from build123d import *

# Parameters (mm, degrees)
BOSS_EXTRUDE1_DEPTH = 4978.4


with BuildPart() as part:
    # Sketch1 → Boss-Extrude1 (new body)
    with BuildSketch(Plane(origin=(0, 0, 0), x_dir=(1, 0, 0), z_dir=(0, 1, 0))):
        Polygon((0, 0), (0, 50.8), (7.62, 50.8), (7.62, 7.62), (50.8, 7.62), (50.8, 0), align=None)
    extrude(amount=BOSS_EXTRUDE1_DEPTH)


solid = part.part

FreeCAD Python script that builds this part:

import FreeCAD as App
import Part
import Sketcher

V = App.Vector
Q = App.Units.Quantity

doc = App.newDocument("Part")
params = doc.addObject("Spreadsheet::Sheet", "Params")
for row, (alias, value) in enumerate([
    ("sketch1_width", "2 in"),
    ("sketch1_width2", "1.7 in"),
    ("pad1_length", "196 in"),
], start=1):
    params.set(f"A{row}", alias)
    params.set(f"B{row}", "=" + value)
    params.setAlias(f"B{row}", alias)

body = doc.addObject("PartDesign::Body", "Body")

sketch1 = body.newObject("Sketcher::SketchObject", "Sketch")
sketch1.AttachmentSupport = (doc.getObject("XZ_Plane"), [""])
sketch1.MapMode = "FlatFace"
sketch1.addGeometry([
    Part.LineSegment(V(0, -51, 0), V(0, 0, 0)),
    Part.LineSegment(V(0, 0, 0), V(51, 0, 0)),
    Part.LineSegment(V(51, 0, 0), V(51, -8, 0)),
    Part.LineSegment(V(51, -8, 0), V(8, -8, 0)),
    Part.LineSegment(V(8, -8, 0), V(8, -51, 0)),
    Part.LineSegment(V(8, -51, 0), V(0, -51, 0)),
], False)
sketch1.addConstraint([
    Sketcher.Constraint("Coincident", 0, 2, 1, 1),
    Sketcher.Constraint("Coincident", 1, 2, 2, 1),
    Sketcher.Constraint("Coincident", 2, 2, 3, 1),
    Sketcher.Constraint("Coincident", 3, 2, 4, 1),
    Sketcher.Constraint("Coincident", 4, 2, 5, 1),
    Sketcher.Constraint("Coincident", 5, 2, 0, 1),
    Sketcher.Constraint("Vertical", 0),
    Sketcher.Constraint("Horizontal", 1),
    Sketcher.Constraint("Vertical", 2),
    Sketcher.Constraint("Horizontal", 3),
    Sketcher.Constraint("Vertical", 4),
    Sketcher.Constraint("Horizontal", 5),
    Sketcher.Constraint("Coincident", 0, 2, -1, 1),
    Sketcher.Constraint("Equal", 1, 0),
    Sketcher.Constraint("Equal", 5, 2),
    Sketcher.Constraint("DistanceX", 1, 1, 1, 2, Q("2 in")),
    Sketcher.Constraint("DistanceX", 3, 2, 3, 1, Q("1.7 in")),
])
sketch1.setExpression("Constraints[15]", "Params.sketch1_width")
sketch1.setExpression("Constraints[16]", "Params.sketch1_width2")
pad1 = body.newObject("PartDesign::Pad", "Pad")
pad1.Profile = sketch1
pad1.setExpression("Length", "Params.pad1_length")
pad1.Reversed = True

doc.recompute()
